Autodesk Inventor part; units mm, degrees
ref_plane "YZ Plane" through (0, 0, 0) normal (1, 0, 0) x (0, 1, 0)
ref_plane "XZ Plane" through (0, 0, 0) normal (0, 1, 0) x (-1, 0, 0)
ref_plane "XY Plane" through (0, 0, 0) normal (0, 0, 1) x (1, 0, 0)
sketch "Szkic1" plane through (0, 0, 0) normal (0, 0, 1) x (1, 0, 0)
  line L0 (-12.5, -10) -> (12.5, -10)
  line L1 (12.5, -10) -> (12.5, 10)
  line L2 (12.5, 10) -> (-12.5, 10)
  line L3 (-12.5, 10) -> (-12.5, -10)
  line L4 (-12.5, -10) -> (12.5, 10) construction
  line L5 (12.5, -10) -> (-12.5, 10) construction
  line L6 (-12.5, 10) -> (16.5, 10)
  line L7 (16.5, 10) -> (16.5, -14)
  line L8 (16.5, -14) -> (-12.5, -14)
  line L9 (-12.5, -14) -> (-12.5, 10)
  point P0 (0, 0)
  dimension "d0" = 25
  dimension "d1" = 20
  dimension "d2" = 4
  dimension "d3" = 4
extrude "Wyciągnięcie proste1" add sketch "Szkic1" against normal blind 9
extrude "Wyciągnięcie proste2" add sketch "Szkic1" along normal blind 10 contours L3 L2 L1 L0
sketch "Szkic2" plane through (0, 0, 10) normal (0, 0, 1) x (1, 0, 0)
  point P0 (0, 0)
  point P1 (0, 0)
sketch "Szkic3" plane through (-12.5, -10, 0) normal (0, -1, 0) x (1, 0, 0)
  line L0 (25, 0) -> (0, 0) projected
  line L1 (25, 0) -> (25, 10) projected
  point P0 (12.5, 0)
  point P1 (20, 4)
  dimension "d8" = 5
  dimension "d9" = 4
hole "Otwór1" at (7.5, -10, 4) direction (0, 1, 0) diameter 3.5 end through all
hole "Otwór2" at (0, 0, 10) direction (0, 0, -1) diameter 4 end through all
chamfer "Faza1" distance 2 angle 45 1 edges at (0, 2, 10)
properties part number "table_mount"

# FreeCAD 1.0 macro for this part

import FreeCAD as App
import Part
import Sketcher
Q = App.Units.Quantity


def edges_at(feature, points):
    """Names of the edges that pass closest to the given points."""
    edges = feature.Shape.Edges
    near = lambda p: min(range(len(edges)), key=lambda i: edges[i].distToShape(Part.Vertex(*p))[0])
    return sorted({f"Edge{near(p) + 1}" for p in points})

doc = App.newDocument("Part")
body = doc.addObject("PartDesign::Body", "Body")

# Sketch on XY plane
sketch1 = body.newObject("Sketcher::SketchObject", "Sketch")
sketch1.AttachmentSupport = (doc.getObject("XY_Plane"), [""])
sketch1.MapMode = "FlatFace"
sketch1.addGeometry([
    Part.LineSegment(App.Vector(-12, 10, 0), App.Vector(-12, -14, 0)),
    Part.LineSegment(App.Vector(-12, -14, 0), App.Vector(16, -14, 0)),
    Part.LineSegment(App.Vector(16, -14, 0), App.Vector(16, 10, 0)),
    Part.LineSegment(App.Vector(16, 10, 0), App.Vector(-12, 10, 0)),
], False)
sketch1.addConstraint([
    Sketcher.Constraint("Coincident", 0, 2, 1, 1),
    Sketcher.Constraint("Coincident", 1, 2, 2, 1),
    Sketcher.Constraint("Coincident", 2, 2, 3, 1),
    Sketcher.Constraint("Coincident", 3, 2, 0, 1),
    Sketcher.Constraint("Vertical", 0),
    Sketcher.Constraint("Horizontal", 1),
    Sketcher.Constraint("Vertical", 2),
    Sketcher.Constraint("Horizontal", 3),
    Sketcher.Constraint("DistanceX", 1, 1, 1, 2, Q("29 mm")),
    Sketcher.Constraint("DistanceY", 0, 2, 0, 1, Q("24 mm")),
    Sketcher.Constraint("DistanceY", 0, 2, -1, 1, Q("14 mm")),
    Sketcher.Constraint("DistanceX", 0, 2, -1, 1, Q("12.5 mm")),
])
pad1 = body.newObject("PartDesign::Pad", "Pad")
pad1.Profile = sketch1
pad1.Length = 9
pad1.Reversed = True

# Sketch on XY plane
sketch2 = body.newObject("Sketcher::SketchObject", "Sketch001")
sketch2.AttachmentSupport = (doc.getObject("XY_Plane"), [""])
sketch2.MapMode = "FlatFace"
sketch2.addGeometry([
    Part.LineSegment(App.Vector(-12, 10, 0), App.Vector(-12, -10, 0)),
    Part.LineSegment(App.Vector(-12, -10, 0), App.Vector(12, -10, 0)),
    Part.LineSegment(App.Vector(12, -10, 0), App.Vector(12, 10, 0)),
    Part.LineSegment(App.Vector(12, 10, 0), App.Vector(-12, 10, 0)),
], False)
sketch2.addConstraint([
    Sketcher.Constraint("Coincident", 0, 2, 1, 1),
    Sketcher.Constraint("Coincident", 1, 2, 2, 1),
    Sketcher.Constraint("Coincident", 2, 2, 3, 1),
    Sketcher.Constraint("Coincident", 3, 2, 0, 1),
    Sketcher.Constraint("Vertical", 0),
    Sketcher.Constraint("Horizontal", 1),
    Sketcher.Constraint("Vertical", 2),
    Sketcher.Constraint("Horizontal", 3),
    Sketcher.Constraint("Symmetric", 0, 2, 2, 2, -1, 1),
    Sketcher.Constraint("DistanceX", 1, 1, 1, 2, Q("25 mm")),
    Sketcher.Constraint("DistanceY", 0, 2, 0, 1, Q("20 mm")),
])
pad2 = body.newObject("PartDesign::Pad", "Pad001")
pad2.Profile = sketch2
pad2.Length = 10

# Sketch on XZ plane
sketch3 = body.newObject("Sketcher::SketchObject", "Sketch002")
sketch3.AttachmentSupport = (doc.getObject("XZ_Plane"), [""])
sketch3.MapMode = "FlatFace"
sketch3.AttachmentOffset = App.Placement(App.Vector(0, 0, 10), App.Rotation())
sketch3.addGeometry(Part.Circle(App.Vector(7.5, 4, 0), App.Vector(0, 0, 1), 1.8), False)
sketch3.addConstraint([
    Sketcher.Constraint("Diameter", 0, Q("3.5 mm")),
    Sketcher.Constraint("DistanceY", -1, 1, 0, 3, Q("4 mm")),
    Sketcher.Constraint("DistanceX", -1, 1, 0, 3, Q("7.5 mm")),
])
doc.recompute()
hole = body.newObject("PartDesign::Hole", "Hole")
hole.Profile = sketch3
hole.ThreadType = "None"
hole.Diameter = 3.5
hole.DepthType = "ThroughAll"

# Sketch on XY plane
sketch4 = body.newObject("Sketcher::SketchObject", "Sketch003")
sketch4.AttachmentSupport = (doc.getObject("XY_Plane"), [""])
sketch4.MapMode = "FlatFace"
sketch4.AttachmentOffset = App.Placement(App.Vector(0, 0, 10), App.Rotation())
sketch4.addGeometry(Part.Circle(App.Vector(0, 0, 0), App.Vector(0, 0, 1), 2), False)
sketch4.addConstraint([
    Sketcher.Constraint("Coincident", 0, 3, -1, 1),
    Sketcher.Constraint("Diameter", 0, Q("4 mm")),
])
doc.recompute()
hole2 = body.newObject("PartDesign::Hole", "Hole001")
hole2.Profile = sketch4
hole2.ThreadType = "None"
hole2.Diameter = 4
hole2.DepthType = "ThroughAll"
doc.recompute()

chamfer = body.newObject("PartDesign::Chamfer", "Chamfer")
chamfer.Base = (hole2, edges_at(hole2, [(0, 2, 10)]))
chamfer.Size = 2

doc.recompute()
